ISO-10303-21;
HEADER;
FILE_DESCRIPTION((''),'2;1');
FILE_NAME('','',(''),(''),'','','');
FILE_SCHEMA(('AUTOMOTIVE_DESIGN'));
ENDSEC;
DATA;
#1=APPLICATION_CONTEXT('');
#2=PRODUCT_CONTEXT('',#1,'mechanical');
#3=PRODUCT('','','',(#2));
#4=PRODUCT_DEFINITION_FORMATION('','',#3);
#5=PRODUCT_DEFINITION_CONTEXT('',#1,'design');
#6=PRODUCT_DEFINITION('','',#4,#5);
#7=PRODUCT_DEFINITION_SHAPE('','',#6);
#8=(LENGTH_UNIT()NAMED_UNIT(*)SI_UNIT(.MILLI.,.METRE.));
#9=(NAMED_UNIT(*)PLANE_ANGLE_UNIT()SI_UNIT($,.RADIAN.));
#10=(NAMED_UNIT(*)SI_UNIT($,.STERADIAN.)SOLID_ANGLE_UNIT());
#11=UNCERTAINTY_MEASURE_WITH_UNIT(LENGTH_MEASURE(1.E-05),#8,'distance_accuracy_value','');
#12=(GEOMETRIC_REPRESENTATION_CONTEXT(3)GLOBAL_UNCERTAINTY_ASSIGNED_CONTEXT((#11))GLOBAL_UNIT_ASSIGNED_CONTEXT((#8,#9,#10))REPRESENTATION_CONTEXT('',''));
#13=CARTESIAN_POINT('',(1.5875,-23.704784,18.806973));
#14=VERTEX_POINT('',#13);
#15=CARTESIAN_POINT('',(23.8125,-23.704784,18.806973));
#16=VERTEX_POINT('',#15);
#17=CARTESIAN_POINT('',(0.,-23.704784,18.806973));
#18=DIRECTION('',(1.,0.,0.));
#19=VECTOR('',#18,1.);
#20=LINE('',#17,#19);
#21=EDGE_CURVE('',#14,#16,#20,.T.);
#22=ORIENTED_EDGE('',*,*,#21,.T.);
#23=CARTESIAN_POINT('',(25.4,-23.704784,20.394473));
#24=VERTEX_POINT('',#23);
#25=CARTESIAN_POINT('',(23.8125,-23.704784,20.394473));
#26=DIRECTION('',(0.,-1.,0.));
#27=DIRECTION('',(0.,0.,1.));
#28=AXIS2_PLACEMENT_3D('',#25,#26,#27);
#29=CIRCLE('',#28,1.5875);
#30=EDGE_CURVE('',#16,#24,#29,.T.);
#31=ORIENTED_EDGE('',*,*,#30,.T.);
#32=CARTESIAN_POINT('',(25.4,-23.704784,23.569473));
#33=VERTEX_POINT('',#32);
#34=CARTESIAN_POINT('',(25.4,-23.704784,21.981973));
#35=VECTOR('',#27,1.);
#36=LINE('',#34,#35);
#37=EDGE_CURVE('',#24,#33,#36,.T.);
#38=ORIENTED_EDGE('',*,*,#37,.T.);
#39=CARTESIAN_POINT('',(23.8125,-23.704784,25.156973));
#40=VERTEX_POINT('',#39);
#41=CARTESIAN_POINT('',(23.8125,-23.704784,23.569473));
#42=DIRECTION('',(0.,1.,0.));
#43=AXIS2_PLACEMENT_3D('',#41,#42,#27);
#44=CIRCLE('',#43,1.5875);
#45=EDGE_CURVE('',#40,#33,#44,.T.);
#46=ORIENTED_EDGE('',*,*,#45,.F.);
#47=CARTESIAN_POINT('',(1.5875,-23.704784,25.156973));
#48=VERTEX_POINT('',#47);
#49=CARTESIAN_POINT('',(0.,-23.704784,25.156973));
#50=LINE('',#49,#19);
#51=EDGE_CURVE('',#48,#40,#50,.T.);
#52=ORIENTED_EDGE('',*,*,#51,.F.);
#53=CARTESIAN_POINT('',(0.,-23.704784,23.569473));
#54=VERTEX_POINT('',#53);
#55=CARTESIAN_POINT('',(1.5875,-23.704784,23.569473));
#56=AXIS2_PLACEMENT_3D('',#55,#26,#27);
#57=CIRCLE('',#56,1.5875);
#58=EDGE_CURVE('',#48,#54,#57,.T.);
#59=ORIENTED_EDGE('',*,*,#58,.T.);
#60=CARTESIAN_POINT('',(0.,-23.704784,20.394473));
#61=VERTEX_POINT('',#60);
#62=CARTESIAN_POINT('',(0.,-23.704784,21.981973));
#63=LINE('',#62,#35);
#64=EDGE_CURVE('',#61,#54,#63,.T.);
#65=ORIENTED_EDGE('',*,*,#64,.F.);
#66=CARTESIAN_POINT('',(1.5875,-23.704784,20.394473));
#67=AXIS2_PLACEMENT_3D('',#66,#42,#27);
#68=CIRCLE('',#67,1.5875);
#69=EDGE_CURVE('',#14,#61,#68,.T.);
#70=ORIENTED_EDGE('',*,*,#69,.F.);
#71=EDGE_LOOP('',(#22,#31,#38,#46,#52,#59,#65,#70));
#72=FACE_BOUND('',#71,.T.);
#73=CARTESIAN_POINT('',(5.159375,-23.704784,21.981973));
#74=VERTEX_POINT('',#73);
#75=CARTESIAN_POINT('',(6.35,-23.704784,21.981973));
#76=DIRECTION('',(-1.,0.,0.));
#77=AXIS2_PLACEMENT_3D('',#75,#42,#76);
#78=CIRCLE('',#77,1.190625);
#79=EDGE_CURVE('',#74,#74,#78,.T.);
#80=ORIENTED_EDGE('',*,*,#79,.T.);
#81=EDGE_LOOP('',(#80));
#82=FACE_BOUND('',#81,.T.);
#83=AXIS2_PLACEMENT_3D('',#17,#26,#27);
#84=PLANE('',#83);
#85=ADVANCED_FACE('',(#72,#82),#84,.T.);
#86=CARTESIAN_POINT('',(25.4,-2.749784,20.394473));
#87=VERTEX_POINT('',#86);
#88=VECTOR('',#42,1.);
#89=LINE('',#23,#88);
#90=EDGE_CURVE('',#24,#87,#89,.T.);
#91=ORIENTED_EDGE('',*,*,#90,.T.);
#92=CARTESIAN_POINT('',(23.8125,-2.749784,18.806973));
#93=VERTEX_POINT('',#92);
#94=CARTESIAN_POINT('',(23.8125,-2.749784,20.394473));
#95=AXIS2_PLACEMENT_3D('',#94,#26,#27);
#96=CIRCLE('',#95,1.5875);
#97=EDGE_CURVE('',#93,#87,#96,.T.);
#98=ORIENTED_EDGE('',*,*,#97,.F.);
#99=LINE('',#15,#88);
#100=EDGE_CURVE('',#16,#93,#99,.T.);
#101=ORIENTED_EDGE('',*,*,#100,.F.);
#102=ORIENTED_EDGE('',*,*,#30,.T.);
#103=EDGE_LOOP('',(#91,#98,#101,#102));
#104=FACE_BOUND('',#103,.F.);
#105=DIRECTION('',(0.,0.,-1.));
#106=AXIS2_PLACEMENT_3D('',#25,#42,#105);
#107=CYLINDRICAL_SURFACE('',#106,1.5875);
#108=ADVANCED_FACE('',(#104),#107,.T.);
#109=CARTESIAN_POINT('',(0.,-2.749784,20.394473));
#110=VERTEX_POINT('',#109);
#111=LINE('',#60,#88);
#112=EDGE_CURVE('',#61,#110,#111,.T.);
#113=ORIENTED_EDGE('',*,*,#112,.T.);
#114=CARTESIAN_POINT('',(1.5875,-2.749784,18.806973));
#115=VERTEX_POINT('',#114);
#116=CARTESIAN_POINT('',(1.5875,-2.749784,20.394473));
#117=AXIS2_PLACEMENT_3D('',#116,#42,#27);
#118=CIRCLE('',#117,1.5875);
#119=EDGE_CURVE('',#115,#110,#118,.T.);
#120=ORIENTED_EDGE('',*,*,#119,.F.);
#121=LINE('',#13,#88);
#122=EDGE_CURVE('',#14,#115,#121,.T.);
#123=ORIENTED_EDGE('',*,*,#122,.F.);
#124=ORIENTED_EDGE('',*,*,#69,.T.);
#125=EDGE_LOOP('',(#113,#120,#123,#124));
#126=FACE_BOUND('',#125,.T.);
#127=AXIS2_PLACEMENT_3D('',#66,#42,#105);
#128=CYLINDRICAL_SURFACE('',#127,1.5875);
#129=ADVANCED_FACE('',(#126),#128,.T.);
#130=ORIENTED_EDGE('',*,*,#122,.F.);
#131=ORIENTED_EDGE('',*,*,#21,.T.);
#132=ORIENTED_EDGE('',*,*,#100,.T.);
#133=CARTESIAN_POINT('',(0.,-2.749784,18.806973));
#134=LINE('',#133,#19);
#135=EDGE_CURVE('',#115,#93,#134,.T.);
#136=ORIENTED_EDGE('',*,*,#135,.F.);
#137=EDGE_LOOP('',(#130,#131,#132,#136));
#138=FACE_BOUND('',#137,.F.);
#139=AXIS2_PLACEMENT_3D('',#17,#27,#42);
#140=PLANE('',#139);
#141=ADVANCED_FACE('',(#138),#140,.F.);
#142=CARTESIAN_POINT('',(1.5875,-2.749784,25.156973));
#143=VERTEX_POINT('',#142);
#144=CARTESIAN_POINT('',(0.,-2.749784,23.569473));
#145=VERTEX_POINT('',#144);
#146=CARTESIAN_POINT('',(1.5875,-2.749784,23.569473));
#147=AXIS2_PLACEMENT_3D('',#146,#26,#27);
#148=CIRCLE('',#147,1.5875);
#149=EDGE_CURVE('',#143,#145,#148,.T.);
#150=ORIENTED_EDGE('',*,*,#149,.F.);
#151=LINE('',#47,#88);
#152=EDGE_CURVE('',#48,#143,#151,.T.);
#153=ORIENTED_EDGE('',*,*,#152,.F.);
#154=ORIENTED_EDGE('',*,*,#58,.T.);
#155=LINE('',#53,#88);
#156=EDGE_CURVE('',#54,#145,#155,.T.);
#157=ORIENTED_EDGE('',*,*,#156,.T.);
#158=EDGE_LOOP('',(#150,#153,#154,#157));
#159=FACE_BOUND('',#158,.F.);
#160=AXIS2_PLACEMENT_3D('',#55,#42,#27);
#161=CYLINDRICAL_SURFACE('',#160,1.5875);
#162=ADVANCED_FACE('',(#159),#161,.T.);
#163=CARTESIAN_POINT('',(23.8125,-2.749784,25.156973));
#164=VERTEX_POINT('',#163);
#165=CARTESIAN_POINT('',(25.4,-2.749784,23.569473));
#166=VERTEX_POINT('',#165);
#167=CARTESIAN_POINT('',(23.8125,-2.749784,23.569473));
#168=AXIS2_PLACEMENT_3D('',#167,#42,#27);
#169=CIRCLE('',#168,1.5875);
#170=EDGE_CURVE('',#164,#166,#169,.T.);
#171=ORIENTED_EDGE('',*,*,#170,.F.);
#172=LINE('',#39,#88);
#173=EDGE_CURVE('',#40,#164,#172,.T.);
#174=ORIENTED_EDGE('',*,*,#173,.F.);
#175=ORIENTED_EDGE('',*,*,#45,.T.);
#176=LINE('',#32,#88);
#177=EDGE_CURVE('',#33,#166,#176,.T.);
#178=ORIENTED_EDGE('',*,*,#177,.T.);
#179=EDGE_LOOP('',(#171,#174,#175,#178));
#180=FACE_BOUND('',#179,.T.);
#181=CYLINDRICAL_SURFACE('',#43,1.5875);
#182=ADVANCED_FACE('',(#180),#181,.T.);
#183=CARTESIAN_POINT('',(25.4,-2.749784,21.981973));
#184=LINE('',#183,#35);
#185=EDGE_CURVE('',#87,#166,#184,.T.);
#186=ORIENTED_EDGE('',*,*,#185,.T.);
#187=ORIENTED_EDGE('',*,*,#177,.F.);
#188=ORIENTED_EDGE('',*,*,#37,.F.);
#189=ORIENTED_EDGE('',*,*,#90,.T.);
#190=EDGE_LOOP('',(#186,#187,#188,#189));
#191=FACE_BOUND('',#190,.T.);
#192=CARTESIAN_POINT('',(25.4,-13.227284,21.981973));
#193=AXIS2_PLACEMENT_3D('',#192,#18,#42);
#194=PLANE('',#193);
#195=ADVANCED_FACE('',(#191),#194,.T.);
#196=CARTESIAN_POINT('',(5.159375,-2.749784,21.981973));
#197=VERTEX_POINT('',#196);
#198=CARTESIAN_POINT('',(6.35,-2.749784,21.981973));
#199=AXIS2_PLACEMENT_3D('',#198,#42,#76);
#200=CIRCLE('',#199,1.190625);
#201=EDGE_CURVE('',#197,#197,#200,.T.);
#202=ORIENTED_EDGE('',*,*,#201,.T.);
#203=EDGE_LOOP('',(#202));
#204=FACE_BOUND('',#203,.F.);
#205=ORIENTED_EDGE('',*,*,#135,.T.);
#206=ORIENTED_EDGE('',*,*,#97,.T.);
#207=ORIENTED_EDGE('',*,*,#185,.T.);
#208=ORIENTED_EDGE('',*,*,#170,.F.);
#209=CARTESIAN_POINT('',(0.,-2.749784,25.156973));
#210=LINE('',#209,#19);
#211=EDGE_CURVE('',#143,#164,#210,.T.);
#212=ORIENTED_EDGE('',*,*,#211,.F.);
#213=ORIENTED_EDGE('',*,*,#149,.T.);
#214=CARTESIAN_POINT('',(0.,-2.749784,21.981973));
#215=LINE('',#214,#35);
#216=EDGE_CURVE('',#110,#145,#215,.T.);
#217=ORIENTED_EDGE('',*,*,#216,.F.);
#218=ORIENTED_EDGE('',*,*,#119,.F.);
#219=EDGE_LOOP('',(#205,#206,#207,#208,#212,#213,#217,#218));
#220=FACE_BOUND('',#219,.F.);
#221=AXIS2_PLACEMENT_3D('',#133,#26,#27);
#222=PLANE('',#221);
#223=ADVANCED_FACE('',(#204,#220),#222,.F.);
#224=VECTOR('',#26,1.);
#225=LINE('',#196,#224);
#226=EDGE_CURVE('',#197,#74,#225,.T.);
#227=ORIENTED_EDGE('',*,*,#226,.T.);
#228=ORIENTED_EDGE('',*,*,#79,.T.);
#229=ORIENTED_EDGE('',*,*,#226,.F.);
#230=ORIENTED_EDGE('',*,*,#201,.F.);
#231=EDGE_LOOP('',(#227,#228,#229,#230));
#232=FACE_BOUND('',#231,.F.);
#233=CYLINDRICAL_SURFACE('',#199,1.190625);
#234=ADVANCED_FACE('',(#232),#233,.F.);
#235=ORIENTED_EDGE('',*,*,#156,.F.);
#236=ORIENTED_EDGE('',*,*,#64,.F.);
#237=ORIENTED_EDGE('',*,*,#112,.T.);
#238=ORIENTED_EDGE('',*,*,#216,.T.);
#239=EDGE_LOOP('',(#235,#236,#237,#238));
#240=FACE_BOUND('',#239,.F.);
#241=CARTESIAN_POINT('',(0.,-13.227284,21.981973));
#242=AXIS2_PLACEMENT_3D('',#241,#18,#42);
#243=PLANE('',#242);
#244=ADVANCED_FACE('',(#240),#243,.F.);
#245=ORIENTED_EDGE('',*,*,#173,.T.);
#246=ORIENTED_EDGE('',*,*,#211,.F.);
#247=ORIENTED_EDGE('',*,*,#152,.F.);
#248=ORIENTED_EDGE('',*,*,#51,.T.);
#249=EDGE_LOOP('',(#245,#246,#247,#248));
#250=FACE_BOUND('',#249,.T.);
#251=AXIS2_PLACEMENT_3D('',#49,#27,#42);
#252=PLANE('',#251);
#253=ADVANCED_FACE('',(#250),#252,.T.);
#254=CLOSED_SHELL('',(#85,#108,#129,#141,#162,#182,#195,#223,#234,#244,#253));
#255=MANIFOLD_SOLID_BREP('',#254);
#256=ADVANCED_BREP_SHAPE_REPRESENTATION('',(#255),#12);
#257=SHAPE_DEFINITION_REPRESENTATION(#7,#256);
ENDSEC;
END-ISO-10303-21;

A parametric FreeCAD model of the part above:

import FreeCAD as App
import Part
import Sketcher
from FreeCAD import Vector
Q = App.Units.Quantity


def edges_at(feature, points):
    """Names of the edges that pass closest to the given points."""
    edges = feature.Shape.Edges
    near = lambda p: min(range(len(edges)), key=lambda i: edges[i].distToShape(Part.Vertex(*p))[0])
    return sorted({f"Edge{near(p) + 1}" for p in points})


def add_polygon(sketch, points):
    """Adds a closed chain of lines whose ends are joined by coincident constraints."""
    first, n = sketch.GeometryCount, len(points)
    for a, b in zip(points, points[1:] + points[:1]):
        sketch.addGeometry(Part.LineSegment(App.Vector(*a, 0), App.Vector(*b, 0)), False)
    for i in range(n):
        sketch.addConstraint(Sketcher.Constraint("Coincident", first + i, 2, first + (i + 1) % n, 1))

doc = App.newDocument("Part")
body = doc.addObject("PartDesign::Body", "Body")

# Sketch on YZ plane
sketch1 = body.newObject("Sketcher::SketchObject", "Sketch")
sketch1.AttachmentSupport = (doc.getObject("YZ_Plane"), [""])
sketch1.MapMode = "FlatFace"
add_polygon(sketch1, [(-24, 25), (-24, 19), (-3, 19), (-3, 25)])  # lines 0-3
sketch1.addConstraint(Sketcher.Constraint("Vertical", 0))
sketch1.addConstraint(Sketcher.Constraint("Horizontal", 1))
sketch1.addConstraint(Sketcher.Constraint("Vertical", 2))
sketch1.addConstraint(Sketcher.Constraint("Horizontal", 3))
sketch1.addConstraint(Sketcher.Constraint("DistanceY", 0, 2, 0, 1, Q("0.25 in")))
sketch1.addConstraint(Sketcher.Constraint("DistanceX", 1, 1, 1, 2, Q("0.825 in")))
sketch1.addConstraint(Sketcher.Constraint("DistanceX", 0, 2, -1, 1, 23.704784))
sketch1.addConstraint(Sketcher.Constraint("DistanceY", -1, 1, 0, 2, 18.806973))
pad1 = body.newObject("PartDesign::Pad", "Pad")
pad1.Profile = sketch1
pad1.Length = Q("1 in")
doc.recompute()

fillet = body.newObject("PartDesign::Fillet", "Fillet")
fillet.Base = (pad1, edges_at(pad1, [
    (25.4, -13.227, 25.157),
    (25.4, -13.227, 18.807),
    (0, -13.227, 18.807),
    (0, -13.227, 25.157),
]))
fillet.Radius = Q("0.0625 in")

# Sketch on XZ plane
sketch2 = body.newObject("Sketcher::SketchObject", "Sketch001")
sketch2.AttachmentSupport = (doc.getObject("XZ_Plane"), [""])
sketch2.MapMode = "FlatFace"
sketch2.AttachmentOffset = App.Placement(Vector(0, 0, 2.749784), App.Rotation())
sketch2.addGeometry(Part.Circle(Vector(6.3, 22, 0), Vector(0, 0, 1), 1.2), False)
sketch2.addConstraint(Sketcher.Constraint("Diameter", 0, Q("0.09375 in")))
sketch2.addConstraint(Sketcher.Constraint("DistanceX", -1, 1, 0, 3, Q("0.25 in")))
sketch2.addConstraint(Sketcher.Constraint("DistanceY", -1, 1, 0, 3, 21.981973))
pocket1 = body.newObject("PartDesign::Pocket", "Pocket")
pocket1.Profile = sketch2
pocket1.Length = Q("1 in")
pocket1.Reversed = True

doc.recompute()
